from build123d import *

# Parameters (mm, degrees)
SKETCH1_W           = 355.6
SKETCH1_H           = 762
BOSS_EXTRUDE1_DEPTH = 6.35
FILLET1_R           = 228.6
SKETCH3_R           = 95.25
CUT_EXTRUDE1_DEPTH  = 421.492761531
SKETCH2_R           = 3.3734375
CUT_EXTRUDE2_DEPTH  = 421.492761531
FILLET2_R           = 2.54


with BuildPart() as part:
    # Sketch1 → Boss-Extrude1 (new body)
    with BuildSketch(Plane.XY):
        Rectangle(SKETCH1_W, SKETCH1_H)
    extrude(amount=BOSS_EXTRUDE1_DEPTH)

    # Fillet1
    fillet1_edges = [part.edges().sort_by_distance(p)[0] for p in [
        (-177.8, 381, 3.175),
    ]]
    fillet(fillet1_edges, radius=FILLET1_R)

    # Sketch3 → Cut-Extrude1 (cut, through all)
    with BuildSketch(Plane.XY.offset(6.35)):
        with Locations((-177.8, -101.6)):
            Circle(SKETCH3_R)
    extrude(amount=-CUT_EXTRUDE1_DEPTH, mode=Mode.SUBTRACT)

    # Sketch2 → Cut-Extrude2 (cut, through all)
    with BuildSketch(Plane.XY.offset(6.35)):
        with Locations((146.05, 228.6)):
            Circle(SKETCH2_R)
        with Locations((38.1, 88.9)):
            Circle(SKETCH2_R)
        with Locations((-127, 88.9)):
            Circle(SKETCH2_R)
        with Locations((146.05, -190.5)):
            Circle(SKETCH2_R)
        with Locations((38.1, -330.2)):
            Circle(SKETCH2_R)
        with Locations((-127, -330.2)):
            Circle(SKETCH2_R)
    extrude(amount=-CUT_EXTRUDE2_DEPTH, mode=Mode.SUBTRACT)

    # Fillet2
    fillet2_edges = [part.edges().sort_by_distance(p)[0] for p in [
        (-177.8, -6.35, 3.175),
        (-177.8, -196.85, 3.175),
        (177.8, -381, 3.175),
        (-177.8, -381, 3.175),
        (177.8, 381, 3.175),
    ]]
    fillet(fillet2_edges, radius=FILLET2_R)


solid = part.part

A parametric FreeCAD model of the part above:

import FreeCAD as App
import Part
import Sketcher

V = App.Vector
Q = App.Units.Quantity


def edges_at(feature, points):
    """Names of the edges that pass closest to the given points."""
    edges = feature.Shape.Edges
    near = lambda p: min(range(len(edges)), key=lambda i: edges[i].distToShape(Part.Vertex(*p))[0])
    return sorted({f"Edge{near(p) + 1}" for p in points})


def add_polygon(sketch, points):
    """Adds a closed chain of lines whose ends are joined by coincident constraints."""
    first, n = sketch.GeometryCount, len(points)
    for a, b in zip(points, points[1:] + points[:1]):
        sketch.addGeometry(Part.LineSegment(App.Vector(*a, 0), App.Vector(*b, 0)), False)
    for i in range(n):
        sketch.addConstraint(Sketcher.Constraint("Coincident", first + i, 2, first + (i + 1) % n, 1))

doc = App.newDocument("Part")
body = doc.addObject("PartDesign::Body", "Body")

sketch1 = body.newObject("Sketcher::SketchObject", "Sketch")
sketch1.AttachmentSupport = (doc.getObject("XY_Plane"), [""])
sketch1.MapMode = "FlatFace"
add_polygon(sketch1, [(-178, 381), (-178, -381), (178, -381), (178, 381)])
sketch1.addConstraint(Sketcher.Constraint("Vertical", 0))
sketch1.addConstraint(Sketcher.Constraint("Horizontal", 1))
sketch1.addConstraint(Sketcher.Constraint("Vertical", 2))
sketch1.addConstraint(Sketcher.Constraint("Horizontal", 3))
sketch1.addConstraint(Sketcher.Constraint("Symmetric", 0, 2, 2, 2, -1, 1))
sketch1.addConstraint(Sketcher.Constraint("DistanceX", 1, 1, 1, 2, Q("14 in")))
sketch1.addConstraint(Sketcher.Constraint("DistanceY", 0, 2, 0, 1, Q("30 in")))
pad1 = body.newObject("PartDesign::Pad", "Pad")
pad1.Profile = sketch1
pad1.Length = Q("0.25 in")
doc.recompute()

fillet = body.newObject("PartDesign::Fillet", "Fillet")
fillet.Base = (pad1, edges_at(pad1, [(-177.8, 381, 3.175)]))
fillet.Radius = Q("9 in")

sketch2 = body.newObject("Sketcher::SketchObject", "Sketch001")
sketch2.AttachmentSupport = (doc.getObject("XY_Plane"), [""])
sketch2.MapMode = "FlatFace"
sketch2.AttachmentOffset = App.Placement(V(0, 0, 0.25 * 25.4), App.Rotation())
sketch2.addGeometry(Part.Circle(V(-178, -102, 0), V(0, 0, 1), 95), False)
sketch2.addConstraint(Sketcher.Constraint("Diameter", 0, Q("7.5 in")))
sketch2.addConstraint(Sketcher.Constraint("DistanceX", 0, 3, -1, 1, Q("7 in")))
sketch2.addConstraint(Sketcher.Constraint("DistanceY", 0, 3, -1, 1, Q("4 in")))
pocket1 = body.newObject("PartDesign::Pocket", "Pocket")
pocket1.Profile = sketch2
pocket1.Type = "ThroughAll"

sketch3 = body.newObject("Sketcher::SketchObject", "Sketch002")
sketch3.AttachmentSupport = (doc.getObject("XY_Plane"), [""])
sketch3.MapMode = "FlatFace"
sketch3.AttachmentOffset = App.Placement(V(0, 0, 0.25 * 25.4), App.Rotation())
sketch3.addGeometry(Part.Circle(V(146.1, 228.6, 0), V(0, 0, 1), 3.4), False)
sketch3.addGeometry(Part.Circle(V(38.1, 88.9, 0), V(0, 0, 1), 3.4), False)
sketch3.addGeometry(Part.Circle(V(-127, 88.9, 0), V(0, 0, 1), 3.4), False)
sketch3.addGeometry(Part.Circle(V(146.1, -190.5, 0), V(0, 0, 1), 3.4), False)
sketch3.addGeometry(Part.Circle(V(38.1, -330.2, 0), V(0, 0, 1), 3.4), False)
sketch3.addGeometry(Part.Circle(V(-127, -330.2, 0), V(0, 0, 1), 3.4), False)
sketch3.addConstraint(Sketcher.Constraint("Equal", 0, 1))
sketch3.addConstraint(Sketcher.Constraint("Equal", 1, 2))
sketch3.addConstraint(Sketcher.Constraint("Equal", 2, 3))
sketch3.addConstraint(Sketcher.Constraint("Equal", 3, 4))
sketch3.addConstraint(Sketcher.Constraint("Equal", 4, 5))
sketch3.addConstraint(Sketcher.Constraint("Horizontal", 1, 3, 2, 3))
sketch3.addConstraint(Sketcher.Constraint("Horizontal", 4, 3, 5, 3))
sketch3.addConstraint(Sketcher.Constraint("Vertical", 0, 3, 3, 3))
sketch3.addConstraint(Sketcher.Constraint("Vertical", 1, 3, 4, 3))
sketch3.addConstraint(Sketcher.Constraint("Vertical", 2, 3, 5, 3))
sketch3.addConstraint(Sketcher.Constraint("Diameter", 0, Q("0.265625 in")))
sketch3.addConstraint(Sketcher.Constraint("DistanceY", -1, 1, 0, 3, Q("9 in")))
sketch3.addConstraint(Sketcher.Constraint("DistanceX", 2, 3, -1, 1, Q("5 in")))
sketch3.addConstraint(Sketcher.Constraint("DistanceY", 4, 3, -1, 1, Q("13 in")))
sketch3.addConstraint(Sketcher.Constraint("DistanceY", 3, 3, 1, 3, Q("11 in")))
sketch3.addConstraint(Sketcher.Constraint("DistanceX", -1, 1, 1, 3, Q("1.5 in")))
sketch3.addConstraint(Sketcher.Constraint("DistanceY", -1, 1, 1, 3, Q("3.5 in")))
sketch3.addConstraint(Sketcher.Constraint("DistanceX", -1, 1, 0, 3, Q("5.75 in")))
pocket2 = body.newObject("PartDesign::Pocket", "Pocket001")
pocket2.Profile = sketch3
pocket2.Type = "ThroughAll"
doc.recompute()

fillet2 = body.newObject("PartDesign::Fillet", "Fillet001")
fillet2.Base = (pocket2, edges_at(pocket2, [
    (-177.8, -6.35, 3.175),
    (-177.8, -196.85, 3.175),
    (177.8, -381, 3.175),
    (-177.8, -381, 3.175),
    (177.8, 381, 3.175),
]))
fillet2.Radius = Q("0.1 in")

doc.recompute()
